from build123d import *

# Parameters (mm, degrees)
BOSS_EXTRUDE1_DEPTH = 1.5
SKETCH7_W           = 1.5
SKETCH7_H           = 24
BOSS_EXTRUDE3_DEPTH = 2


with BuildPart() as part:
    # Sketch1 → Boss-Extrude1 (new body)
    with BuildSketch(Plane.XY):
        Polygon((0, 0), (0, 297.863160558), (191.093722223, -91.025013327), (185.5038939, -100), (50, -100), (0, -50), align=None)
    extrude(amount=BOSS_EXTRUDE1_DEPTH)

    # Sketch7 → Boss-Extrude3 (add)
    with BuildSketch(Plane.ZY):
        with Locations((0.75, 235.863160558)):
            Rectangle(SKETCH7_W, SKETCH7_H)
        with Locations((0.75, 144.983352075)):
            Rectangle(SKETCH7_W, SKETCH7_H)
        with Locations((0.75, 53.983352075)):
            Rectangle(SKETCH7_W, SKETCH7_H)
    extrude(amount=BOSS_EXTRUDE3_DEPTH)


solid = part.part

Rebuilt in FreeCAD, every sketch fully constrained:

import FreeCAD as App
import Part
import Sketcher

V = App.Vector
Q = App.Units.Quantity

doc = App.newDocument("Part")
body = doc.addObject("PartDesign::Body", "Body")

sketch1 = doc.addObject("Sketcher::SketchObject", "Sketch")
body.addObject(sketch1)
sketch1.AttachmentSupport = (doc.XY_Plane, [""])
sketch1.MapMode = "FlatFace"
sketch1.addGeometry([
    Part.LineSegment(V(0, 297.863161, 0), V(0, -50, 0)),
    Part.LineSegment(V(0, -50, 0), V(50, -100, 0)),
    Part.LineSegment(V(50, -100, 0), V(185.503894, -100, 0)),
    Part.LineSegment(V(185.503894, -100, 0), V(191.093722, -91.025013, 0)),
    Part.LineSegment(V(191.093722, -91.025013, 0), V(0, 297.863161, 0)),
], False)
sketch1.addConstraint([
    Sketcher.Constraint("Coincident", 0, 2, 1, 1),
    Sketcher.Constraint("Coincident", 1, 2, 2, 1),
    Sketcher.Constraint("Coincident", 2, 2, 3, 1),
    Sketcher.Constraint("Coincident", 3, 2, 4, 1),
    Sketcher.Constraint("Coincident", 4, 2, 0, 1),
    Sketcher.Constraint("Vertical", 0),
    Sketcher.Constraint("Horizontal", 2),
    Sketcher.Constraint("PointOnObject", 0, 2, -2),
    Sketcher.Constraint("Angle", 1, Q("-45 deg")),
    Sketcher.Constraint("DistanceY", 0, 2, -1, 1, 50.0),
    Sketcher.Constraint("DistanceX", -1, 1, 1, 2, 50.0),
    Sketcher.Constraint("DistanceY", 0, 2, 0, 1, 347.863161),
    Sketcher.Constraint("Distance", 3, 10.57339),
    Sketcher.Constraint("Distance", 4, 433.30223),
    Sketcher.Constraint("DistanceX", 2, 1, 2, 2, 135.503894),
])
pad1 = doc.addObject("PartDesign::Pad", "Pad")
body.addObject(pad1)
pad1.Profile = sketch1
pad1.Length = 1.5

sketch2 = doc.addObject("Sketcher::SketchObject", "Sketch001")
body.addObject(sketch2)
sketch2.AttachmentSupport = (doc.YZ_Plane, [""])
sketch2.MapMode = "FlatFace"
sketch2.addGeometry([
    Part.LineSegment(V(247.863161, 0, 0), V(223.863161, 0, 0)),
    Part.LineSegment(V(223.863161, 0, 0), V(223.863161, 1.5, 0)),
    Part.LineSegment(V(223.863161, 1.5, 0), V(247.863161, 1.5, 0)),
    Part.LineSegment(V(247.863161, 1.5, 0), V(247.863161, 0, 0)),
    Part.LineSegment(V(156.983352, 0, 0), V(132.983352, 0, 0)),
    Part.LineSegment(V(132.983352, 0, 0), V(132.983352, 1.5, 0)),
    Part.LineSegment(V(132.983352, 1.5, 0), V(156.983352, 1.5, 0)),
    Part.LineSegment(V(156.983352, 1.5, 0), V(156.983352, 0, 0)),
    Part.LineSegment(V(65.983352, 0, 0), V(41.983352, 0, 0)),
    Part.LineSegment(V(41.983352, 0, 0), V(41.983352, 1.5, 0)),
    Part.LineSegment(V(41.983352, 1.5, 0), V(65.983352, 1.5, 0)),
    Part.LineSegment(V(65.983352, 1.5, 0), V(65.983352, 0, 0)),
], False)
sketch2.addConstraint([
    Sketcher.Constraint("Coincident", 0, 2, 1, 1),
    Sketcher.Constraint("Coincident", 1, 2, 2, 1),
    Sketcher.Constraint("Coincident", 2, 2, 3, 1),
    Sketcher.Constraint("Coincident", 3, 2, 0, 1),
    Sketcher.Constraint("Coincident", 4, 2, 5, 1),
    Sketcher.Constraint("Coincident", 5, 2, 6, 1),
    Sketcher.Constraint("Coincident", 6, 2, 7, 1),
    Sketcher.Constraint("Coincident", 7, 2, 4, 1),
    Sketcher.Constraint("Coincident", 8, 2, 9, 1),
    Sketcher.Constraint("Coincident", 9, 2, 10, 1),
    Sketcher.Constraint("Coincident", 10, 2, 11, 1),
    Sketcher.Constraint("Coincident", 11, 2, 8, 1),
    Sketcher.Constraint("Horizontal", 0),
    Sketcher.Constraint("Vertical", 1),
    Sketcher.Constraint("Horizontal", 2),
    Sketcher.Constraint("Vertical", 3),
    Sketcher.Constraint("Horizontal", 4),
    Sketcher.Constraint("Vertical", 5),
    Sketcher.Constraint("Horizontal", 6),
    Sketcher.Constraint("Vertical", 7),
    Sketcher.Constraint("Horizontal", 8),
    Sketcher.Constraint("Vertical", 9),
    Sketcher.Constraint("Horizontal", 10),
    Sketcher.Constraint("Vertical", 11),
    Sketcher.Constraint("PointOnObject", 0, 2, -1),
    Sketcher.Constraint("PointOnObject", 4, 2, -1),
    Sketcher.Constraint("PointOnObject", 8, 2, -1),
    Sketcher.Constraint("Horizontal", 2, 2, 5, 2),
    Sketcher.Constraint("Horizontal", 6, 2, 9, 2),
    Sketcher.Constraint("Equal", 2, 4),
    Sketcher.Constraint("Equal", 6, 8),
    Sketcher.Constraint("DistanceX", 0, 2, 0, 1, 24.0),
    Sketcher.Constraint("DistanceY", 1, 1, 1, 2, 1.5),
    Sketcher.Constraint("DistanceX", 8, 2, 4, 2, 91.0),
    Sketcher.Constraint("DistanceX", -1, 1, 0, 2, 223.863161),
    Sketcher.Constraint("DistanceX", 4, 2, 0, 2, 90.879808),
])
pad2 = doc.addObject("PartDesign::Pad", "Pad001")
body.addObject(pad2)
pad2.Profile = sketch2
pad2.Length = 2
pad2.Reversed = True

doc.recompute()
